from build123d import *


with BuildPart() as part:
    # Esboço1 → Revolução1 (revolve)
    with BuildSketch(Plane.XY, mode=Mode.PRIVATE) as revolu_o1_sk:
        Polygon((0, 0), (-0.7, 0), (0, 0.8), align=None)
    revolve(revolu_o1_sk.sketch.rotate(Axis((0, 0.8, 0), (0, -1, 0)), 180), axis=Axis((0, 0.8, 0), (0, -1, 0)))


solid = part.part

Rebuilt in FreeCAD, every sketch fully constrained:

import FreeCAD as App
import Part
import Sketcher
from FreeCAD import Vector
Q = App.Units.Quantity


def add_polygon(sketch, points):
    """Adds a closed chain of lines whose ends are joined by coincident constraints."""
    first, n = sketch.GeometryCount, len(points)
    for a, b in zip(points, points[1:] + points[:1]):
        sketch.addGeometry(Part.LineSegment(App.Vector(*a, 0), App.Vector(*b, 0)), False)
    for i in range(n):
        sketch.addConstraint(Sketcher.Constraint("Coincident", first + i, 2, first + (i + 1) % n, 1))

doc = App.newDocument("Part")
body = doc.addObject("PartDesign::Body", "Body")

sketch1 = body.newObject("Sketcher::SketchObject", "Sketch")
sketch1.AttachmentSupport = (doc.getObject("XY_Plane"), [""])
sketch1.MapMode = "FlatFace"
add_polygon(sketch1, [(-0.7, 0), (0, 0), (0, 0.8)])
sketch1.addConstraint([
    Sketcher.Constraint("Horizontal", 0),
    Sketcher.Constraint("Vertical", 1),
    Sketcher.Constraint("Coincident", 0, 2, -1, 1),
    Sketcher.Constraint("DistanceX", 0, 1, 0, 2, Q("0.7 mm")),
    Sketcher.Constraint("DistanceY", 1, 1, 1, 2, Q("0.8 mm")),
])
revolution = body.newObject("PartDesign::Revolution", "Revolution")
revolution.Profile = sketch1
revolution.ReferenceAxis = (sketch1, ["V_Axis"])
revolution.Angle = 360

doc.recompute()
